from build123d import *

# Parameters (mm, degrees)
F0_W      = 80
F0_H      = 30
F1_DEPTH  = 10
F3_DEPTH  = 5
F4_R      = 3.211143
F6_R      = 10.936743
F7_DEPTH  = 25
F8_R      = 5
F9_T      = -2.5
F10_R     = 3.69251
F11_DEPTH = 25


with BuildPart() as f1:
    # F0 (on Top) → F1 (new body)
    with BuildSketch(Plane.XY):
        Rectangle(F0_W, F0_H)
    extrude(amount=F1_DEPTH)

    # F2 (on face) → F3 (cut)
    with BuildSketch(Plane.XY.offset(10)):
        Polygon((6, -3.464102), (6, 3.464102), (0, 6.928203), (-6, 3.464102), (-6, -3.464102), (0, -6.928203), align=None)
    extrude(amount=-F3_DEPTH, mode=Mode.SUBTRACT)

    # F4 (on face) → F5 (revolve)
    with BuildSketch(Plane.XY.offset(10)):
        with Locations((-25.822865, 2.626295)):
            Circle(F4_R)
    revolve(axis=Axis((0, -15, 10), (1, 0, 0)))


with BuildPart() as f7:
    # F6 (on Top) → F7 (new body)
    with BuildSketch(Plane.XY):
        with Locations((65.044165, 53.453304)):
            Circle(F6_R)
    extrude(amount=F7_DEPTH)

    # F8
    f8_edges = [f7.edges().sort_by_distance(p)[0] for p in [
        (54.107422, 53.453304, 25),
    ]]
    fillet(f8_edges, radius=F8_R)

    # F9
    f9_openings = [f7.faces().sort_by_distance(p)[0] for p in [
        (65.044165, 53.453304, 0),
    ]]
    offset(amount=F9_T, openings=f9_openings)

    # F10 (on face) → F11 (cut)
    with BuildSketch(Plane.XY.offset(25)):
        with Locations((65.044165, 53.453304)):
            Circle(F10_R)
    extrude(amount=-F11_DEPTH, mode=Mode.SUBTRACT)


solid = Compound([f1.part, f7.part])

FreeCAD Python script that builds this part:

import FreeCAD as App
import Part
import Sketcher
from FreeCAD import Vector
Q = App.Units.Quantity


def edges_at(feature, points):
    """Names of the edges that pass closest to the given points."""
    edges = feature.Shape.Edges
    near = lambda p: min(range(len(edges)), key=lambda i: edges[i].distToShape(Part.Vertex(*p))[0])
    return sorted({f"Edge{near(p) + 1}" for p in points})


def faces_at(feature, points):
    """Names of the faces that lie closest to the given points."""
    faces = feature.Shape.Faces
    near = lambda p: min(range(len(faces)), key=lambda i: faces[i].distToShape(Part.Vertex(*p))[0])
    return sorted({f"Face{near(p) + 1}" for p in points})


def add_polygon(sketch, points):
    """Adds a closed chain of lines whose ends are joined by coincident constraints."""
    first, n = sketch.GeometryCount, len(points)
    for a, b in zip(points, points[1:] + points[:1]):
        sketch.addGeometry(Part.LineSegment(App.Vector(*a, 0), App.Vector(*b, 0)), False)
    for i in range(n):
        sketch.addConstraint(Sketcher.Constraint("Coincident", first + i, 2, first + (i + 1) % n, 1))

doc = App.newDocument("Part")
body = doc.addObject("PartDesign::Body", "Body")

# Sketch on XY plane
sketch1 = body.newObject("Sketcher::SketchObject", "Sketch")
sketch1.AttachmentSupport = (doc.getObject("XY_Plane"), [""])
sketch1.MapMode = "FlatFace"
add_polygon(sketch1, [(-40, 15), (-40, -15), (40, -15), (40, 15)])  # lines 0-3
sketch1.addConstraint(Sketcher.Constraint("Vertical", 0))
sketch1.addConstraint(Sketcher.Constraint("Horizontal", 1))
sketch1.addConstraint(Sketcher.Constraint("Vertical", 2))
sketch1.addConstraint(Sketcher.Constraint("Horizontal", 3))
sketch1.addConstraint(Sketcher.Constraint("Symmetric", 0, 2, 2, 2, -1, 1))
sketch1.addConstraint(Sketcher.Constraint("DistanceX", 1, 1, 1, 2, Q("80 mm")))
sketch1.addConstraint(Sketcher.Constraint("DistanceY", 0, 2, 0, 1, Q("30 mm")))
pad1 = body.newObject("PartDesign::Pad", "Pad")
pad1.Profile = sketch1
pad1.Length = 10

# Sketch on XY plane
sketch2 = body.newObject("Sketcher::SketchObject", "Sketch001")
sketch2.AttachmentSupport = (doc.getObject("XY_Plane"), [""])
sketch2.MapMode = "FlatFace"
sketch2.AttachmentOffset = App.Placement(Vector(0, 0, 10), App.Rotation())
add_polygon(sketch2, [(6, -3), (6, 3), (0, 7), (-6, 3), (-6, -3), (0, -7)])  # lines 0-5
sketch2.addConstraint(Sketcher.Constraint("Vertical", 0))
sketch2.addConstraint(Sketcher.Constraint("Vertical", 3))
sketch2.addConstraint(Sketcher.Constraint("Symmetric", 0, 2, 3, 2, -1, 1))
sketch2.addConstraint(Sketcher.Constraint("Symmetric", 1, 2, 4, 2, -1, 1))
sketch2.addConstraint(Sketcher.Constraint("PointOnObject", 1, 2, -2))
sketch2.addConstraint(Sketcher.Constraint("Parallel", 2, 5))
sketch2.addConstraint(Sketcher.Constraint("Horizontal", 0, 2, 2, 2))
sketch2.addConstraint(Sketcher.Constraint("Angle", 1, Q("150.000004 deg")))
sketch2.addConstraint(Sketcher.Constraint("DistanceX", -1, 1, 0, 2, Q("6 mm")))
sketch2.addConstraint(Sketcher.Constraint("DistanceY", -1, 1, 0, 2, Q("3.464102 mm")))
pocket1 = body.newObject("PartDesign::Pocket", "Pocket")
pocket1.Profile = sketch2
pocket1.Length = 5

# Sketch on XY plane
sketch3 = body.newObject("Sketcher::SketchObject", "Sketch002")
sketch3.AttachmentSupport = (doc.getObject("XY_Plane"), [""])
sketch3.MapMode = "FlatFace"
sketch3.AttachmentOffset = App.Placement(Vector(0, 0, 10), App.Rotation())
sketch3.addGeometry(Part.Circle(Vector(-25.8, 2.6, 0), Vector(0, 0, 1), 3.2), False)
sketch3.addGeometry(Part.LineSegment(Vector(-25.8, -15, 0), Vector(-15.8, -15, 0)), True)  # axis
sketch3.addConstraint(Sketcher.Constraint("Horizontal", 1))
sketch3.addConstraint(Sketcher.Constraint("Vertical", 0, 3, 1, 1))
sketch3.addConstraint(Sketcher.Constraint("DistanceX", 1, 1, 1, 2, Q("10 mm")))
sketch3.addConstraint(Sketcher.Constraint("DistanceY", 1, 1, -1, 1, Q("15 mm")))
sketch3.addConstraint(Sketcher.Constraint("Diameter", 0, Q("6.422286 mm")))
sketch3.addConstraint(Sketcher.Constraint("DistanceX", 0, 3, -1, 1, Q("25.822865 mm")))
sketch3.addConstraint(Sketcher.Constraint("DistanceY", -1, 1, 0, 3, Q("2.626295 mm")))
revolution = body.newObject("PartDesign::Revolution", "Revolution")
revolution.Profile = sketch3
revolution.ReferenceAxis = (sketch3, ["Axis0"])
revolution.Angle = 360
body2 = doc.addObject("PartDesign::Body", "Body001")

# Sketch on XY plane
sketch4 = body2.newObject("Sketcher::SketchObject", "Sketch003")
sketch4.AttachmentSupport = (doc.getObject("XY_Plane001"), [""])
sketch4.MapMode = "FlatFace"
sketch4.addGeometry(Part.Circle(Vector(65, 53, 0), Vector(0, 0, 1), 11), False)
sketch4.addConstraint(Sketcher.Constraint("Diameter", 0, Q("21.873486 mm")))
sketch4.addConstraint(Sketcher.Constraint("DistanceX", -1, 1, 0, 3, Q("65.044165 mm")))
sketch4.addConstraint(Sketcher.Constraint("DistanceY", -1, 1, 0, 3, Q("53.453304 mm")))
pad2 = body2.newObject("PartDesign::Pad", "Pad001")
pad2.Profile = sketch4
pad2.Length = 25
doc.recompute()

fillet = body2.newObject("PartDesign::Fillet", "Fillet")
fillet.Base = (pad2, edges_at(pad2, [(54.107, 53.453, 25)]))
fillet.Radius = 5
doc.recompute()

thickness = body2.newObject("PartDesign::Thickness", "Thickness")
thickness.Base = (fillet, faces_at(fillet, [(65.044, 53.453, 0)]))
thickness.Value = 2.5
thickness.Reversed = True
thickness.Join = "Arc"

# Sketch on XY plane
sketch5 = body2.newObject("Sketcher::SketchObject", "Sketch004")
sketch5.AttachmentSupport = (doc.getObject("XY_Plane001"), [""])
sketch5.MapMode = "FlatFace"
sketch5.AttachmentOffset = App.Placement(Vector(0, 0, 25), App.Rotation())
sketch5.addGeometry(Part.Circle(Vector(65, 53.5, 0), Vector(0, 0, 1), 3.7), False)
sketch5.addConstraint(Sketcher.Constraint("Diameter", 0, Q("7.38502 mm")))
sketch5.addConstraint(Sketcher.Constraint("DistanceX", -1, 1, 0, 3, Q("65.044165 mm")))
sketch5.addConstraint(Sketcher.Constraint("DistanceY", -1, 1, 0, 3, Q("53.453304 mm")))
pocket2 = body2.newObject("PartDesign::Pocket", "Pocket001")
pocket2.Profile = sketch5
pocket2.Length = 25

doc.recompute()
